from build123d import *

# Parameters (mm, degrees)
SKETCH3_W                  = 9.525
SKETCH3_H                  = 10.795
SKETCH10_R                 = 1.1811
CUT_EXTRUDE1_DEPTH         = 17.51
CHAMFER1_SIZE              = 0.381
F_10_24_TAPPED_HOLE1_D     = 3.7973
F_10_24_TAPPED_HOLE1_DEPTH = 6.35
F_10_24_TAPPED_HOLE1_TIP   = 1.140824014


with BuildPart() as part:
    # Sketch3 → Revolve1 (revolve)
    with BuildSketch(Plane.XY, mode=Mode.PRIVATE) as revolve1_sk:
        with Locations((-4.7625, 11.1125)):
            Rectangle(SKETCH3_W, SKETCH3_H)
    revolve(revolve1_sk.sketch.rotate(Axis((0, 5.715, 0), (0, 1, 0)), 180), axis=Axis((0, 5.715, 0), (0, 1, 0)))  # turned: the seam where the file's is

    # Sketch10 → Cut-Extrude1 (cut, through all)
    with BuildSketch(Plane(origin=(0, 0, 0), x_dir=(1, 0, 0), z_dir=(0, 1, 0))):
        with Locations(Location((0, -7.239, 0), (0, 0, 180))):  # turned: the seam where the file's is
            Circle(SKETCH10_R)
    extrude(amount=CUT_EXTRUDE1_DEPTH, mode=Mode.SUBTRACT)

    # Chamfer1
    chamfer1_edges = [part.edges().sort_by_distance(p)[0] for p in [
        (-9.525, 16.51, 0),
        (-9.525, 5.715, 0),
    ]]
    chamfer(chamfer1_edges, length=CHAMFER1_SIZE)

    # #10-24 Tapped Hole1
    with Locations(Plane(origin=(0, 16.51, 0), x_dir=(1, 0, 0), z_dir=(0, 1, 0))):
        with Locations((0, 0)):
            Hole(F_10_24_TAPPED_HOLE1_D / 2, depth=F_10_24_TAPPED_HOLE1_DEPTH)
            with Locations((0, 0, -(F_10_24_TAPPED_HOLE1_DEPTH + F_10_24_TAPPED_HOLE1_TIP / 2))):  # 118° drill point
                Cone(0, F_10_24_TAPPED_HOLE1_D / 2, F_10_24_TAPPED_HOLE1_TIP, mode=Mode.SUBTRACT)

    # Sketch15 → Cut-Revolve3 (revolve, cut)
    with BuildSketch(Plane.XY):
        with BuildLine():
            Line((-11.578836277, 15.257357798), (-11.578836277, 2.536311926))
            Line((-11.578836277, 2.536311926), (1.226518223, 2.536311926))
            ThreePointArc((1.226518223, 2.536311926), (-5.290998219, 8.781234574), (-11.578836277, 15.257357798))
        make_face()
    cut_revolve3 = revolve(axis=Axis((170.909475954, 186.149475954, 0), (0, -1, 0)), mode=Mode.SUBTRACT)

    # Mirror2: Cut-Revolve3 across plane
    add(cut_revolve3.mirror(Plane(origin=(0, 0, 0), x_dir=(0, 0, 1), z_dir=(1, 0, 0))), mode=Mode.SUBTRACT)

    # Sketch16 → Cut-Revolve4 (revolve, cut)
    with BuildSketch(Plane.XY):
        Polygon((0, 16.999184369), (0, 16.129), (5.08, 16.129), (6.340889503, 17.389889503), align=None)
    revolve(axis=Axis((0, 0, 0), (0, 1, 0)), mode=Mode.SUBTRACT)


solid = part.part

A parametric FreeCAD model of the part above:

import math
import FreeCAD as App
import Part
import Sketcher

V = App.Vector
Q = App.Units.Quantity


def edges_at(feature, points):
    """Names of the edges that pass closest to the given points."""
    edges = feature.Shape.Edges
    near = lambda p: min(range(len(edges)), key=lambda i: edges[i].distToShape(Part.Vertex(*p))[0])
    return sorted({f"Edge{near(p) + 1}" for p in points})


def add_polygon(sketch, points):
    """Adds a closed chain of lines whose ends are joined by coincident constraints."""
    first, n = sketch.GeometryCount, len(points)
    for a, b in zip(points, points[1:] + points[:1]):
        sketch.addGeometry(Part.LineSegment(App.Vector(*a, 0), App.Vector(*b, 0)), False)
    for i in range(n):
        sketch.addConstraint(Sketcher.Constraint("Coincident", first + i, 2, first + (i + 1) % n, 1))

doc = App.newDocument("Part")
body = doc.addObject("PartDesign::Body", "Body")

# Sketch on XY plane
sketch1 = body.newObject("Sketcher::SketchObject", "Sketch")
sketch1.AttachmentSupport = (doc.getObject("XY_Plane"), [""])
sketch1.MapMode = "FlatFace"
add_polygon(sketch1, [(-10, 17), (-10, 6), (0, 6), (0, 17)])  # lines 0-3
sketch1.addConstraint([
    Sketcher.Constraint("Vertical", 0),
    Sketcher.Constraint("Horizontal", 1),
    Sketcher.Constraint("Vertical", 2),
    Sketcher.Constraint("Horizontal", 3),
    Sketcher.Constraint("PointOnObject", 1, 2, -2),
    Sketcher.Constraint("DistanceX", 1, 1, 1, 2, Q("0.375 in")),
    Sketcher.Constraint("DistanceY", 0, 2, 0, 1, Q("0.425 in")),
    Sketcher.Constraint("DistanceY", -1, 1, 2, 2, Q("0.65 in")),
])
revolution = body.newObject("PartDesign::Revolution", "Revolution")
revolution.Profile = sketch1
revolution.ReferenceAxis = (sketch1, ["V_Axis"])
revolution.Angle = 360

# Sketch on XZ plane
sketch2 = body.newObject("Sketcher::SketchObject", "Sketch001")
sketch2.AttachmentSupport = (doc.getObject("XZ_Plane"), [""])
sketch2.MapMode = "FlatFace"
sketch2.addGeometry(Part.Circle(V(0, 7.2, 0), V(0, 0, 1), 1.2), False)
sketch2.addConstraint([
    Sketcher.Constraint("PointOnObject", 0, 3, -2),
    Sketcher.Constraint("Diameter", 0, Q("0.093 in")),
    Sketcher.Constraint("DistanceY", -1, 1, 0, 3, Q("0.285 in")),
])
pocket1 = body.newObject("PartDesign::Pocket", "Pocket")
pocket1.Profile = sketch2
pocket1.Type = "ThroughAll"
doc.recompute()

chamfer = body.newObject("PartDesign::Chamfer", "Chamfer")
chamfer.Base = (pocket1, edges_at(pocket1, [(-9.525, 16.51, 0), (-9.525, 5.715, 0)]))
chamfer.Size = Q("0.015 in")

# Sketch on XZ plane
sketch3 = body.newObject("Sketcher::SketchObject", "Sketch002")
sketch3.AttachmentSupport = (doc.getObject("XZ_Plane"), [""])
sketch3.MapMode = "FlatFace"
sketch3.AttachmentOffset = App.Placement(V(0, 0, -0.65 * 25.4), App.Rotation())
sketch3.addGeometry(Part.Circle(V(0, 0, 0), V(0, 0, 1), 1.9), False)
sketch3.addConstraint([
    Sketcher.Constraint("Coincident", 0, 3, -1, 1),
    Sketcher.Constraint("Diameter", 0, Q("0.1495 in")),
])
doc.recompute()
hole = body.newObject("PartDesign::Hole", "Hole")
hole.Profile = sketch3
hole.ThreadType = "None"
hole.Diameter = Q("0.1495 in")
hole.DepthType = "Dimension"
hole.Depth = Q("0.25 in")
hole.DrillPoint = "Angled"
hole.DrillPointAngle = 118
hole.Reversed = True

# Sketch on XY plane
sketch4 = body.newObject("Sketcher::SketchObject", "Sketch003")
sketch4.AttachmentSupport = (doc.getObject("XY_Plane"), [""])
sketch4.MapMode = "FlatFace"
sketch4.addGeometry([
    Part.LineSegment(V(-12, 15, 0), V(-12, 3, 0)),
    Part.LineSegment(V(-12, 3, 0), V(1, 3, 0)),
    Part.ArcOfCircle(Part.Circle(V(171, 186, 0), V(0, 0, 1), 250), math.radians(-136.88), math.radians(-132.74)),
], False)
sketch4.addGeometry(Part.LineSegment(V(171, 186, 0), V(171, 3, 0)), True)  # axis
sketch4.addConstraint([
    Sketcher.Constraint("Coincident", 0, 2, 1, 1),
    Sketcher.Constraint("Coincident", 1, 2, 2, 2),
    Sketcher.Constraint("Coincident", 2, 1, 0, 1),
    Sketcher.Constraint("Vertical", 0),
    Sketcher.Constraint("Horizontal", 1),
    Sketcher.Constraint("Vertical", 3),
    Sketcher.Constraint("Coincident", 3, 1, 2, 3),
    Sketcher.Constraint("Horizontal", 1, 2, 3, 2),
    Sketcher.Constraint("Radius", 2, Q("9.843 in")),
    Sketcher.Constraint("DistanceX", 1, 1, 1, 2, 12.805354),
    Sketcher.Constraint("DistanceY", 0, 2, 0, 1, 12.721046),
    Sketcher.Constraint("DistanceY", -1, 1, 0, 2, 2.536312),
    Sketcher.Constraint("DistanceX", -1, 1, 1, 2, 1.226518),
])
groove = body.newObject("PartDesign::Groove", "Groove")
groove.Profile = sketch4
groove.ReferenceAxis = (sketch4, ["Axis0"])
groove.Angle = 360
doc.recompute()

mirrored = body.newObject("PartDesign::Mirrored", "Mirrored")
mirrored.Originals = [groove]
mirrored.MirrorPlane = (doc.getObject("YZ_Plane"), [""])
body.Tip = mirrored

# Sketch on XY plane
sketch5 = body.newObject("Sketcher::SketchObject", "Sketch004")
sketch5.AttachmentSupport = (doc.getObject("XY_Plane"), [""])
sketch5.MapMode = "FlatFace"
add_polygon(sketch5, [(0, 17), (0, 16.1), (5.1, 16.1), (6.3, 17.4)])  # lines 0-3
sketch5.addConstraint([
    Sketcher.Constraint("Vertical", 0),
    Sketcher.Constraint("Horizontal", 1),
    Sketcher.Constraint("PointOnObject", 0, 2, -2),
    Sketcher.Constraint("DistanceX", 1, 1, 1, 2, Q("0.2 in")),
    Sketcher.Constraint("Angle", 2, Q("45 deg")),
    Sketcher.Constraint("DistanceY", -1, 1, 0, 2, Q("0.635 in")),
    Sketcher.Constraint("DistanceY", 0, 2, 0, 1, 0.870184),
    Sketcher.Constraint("DistanceX", -1, 1, 2, 2, 6.34089),
])
groove2 = body.newObject("PartDesign::Groove", "Groove001")
groove2.Profile = sketch5
groove2.ReferenceAxis = (sketch5, ["V_Axis"])
groove2.Angle = 360

doc.recompute()
